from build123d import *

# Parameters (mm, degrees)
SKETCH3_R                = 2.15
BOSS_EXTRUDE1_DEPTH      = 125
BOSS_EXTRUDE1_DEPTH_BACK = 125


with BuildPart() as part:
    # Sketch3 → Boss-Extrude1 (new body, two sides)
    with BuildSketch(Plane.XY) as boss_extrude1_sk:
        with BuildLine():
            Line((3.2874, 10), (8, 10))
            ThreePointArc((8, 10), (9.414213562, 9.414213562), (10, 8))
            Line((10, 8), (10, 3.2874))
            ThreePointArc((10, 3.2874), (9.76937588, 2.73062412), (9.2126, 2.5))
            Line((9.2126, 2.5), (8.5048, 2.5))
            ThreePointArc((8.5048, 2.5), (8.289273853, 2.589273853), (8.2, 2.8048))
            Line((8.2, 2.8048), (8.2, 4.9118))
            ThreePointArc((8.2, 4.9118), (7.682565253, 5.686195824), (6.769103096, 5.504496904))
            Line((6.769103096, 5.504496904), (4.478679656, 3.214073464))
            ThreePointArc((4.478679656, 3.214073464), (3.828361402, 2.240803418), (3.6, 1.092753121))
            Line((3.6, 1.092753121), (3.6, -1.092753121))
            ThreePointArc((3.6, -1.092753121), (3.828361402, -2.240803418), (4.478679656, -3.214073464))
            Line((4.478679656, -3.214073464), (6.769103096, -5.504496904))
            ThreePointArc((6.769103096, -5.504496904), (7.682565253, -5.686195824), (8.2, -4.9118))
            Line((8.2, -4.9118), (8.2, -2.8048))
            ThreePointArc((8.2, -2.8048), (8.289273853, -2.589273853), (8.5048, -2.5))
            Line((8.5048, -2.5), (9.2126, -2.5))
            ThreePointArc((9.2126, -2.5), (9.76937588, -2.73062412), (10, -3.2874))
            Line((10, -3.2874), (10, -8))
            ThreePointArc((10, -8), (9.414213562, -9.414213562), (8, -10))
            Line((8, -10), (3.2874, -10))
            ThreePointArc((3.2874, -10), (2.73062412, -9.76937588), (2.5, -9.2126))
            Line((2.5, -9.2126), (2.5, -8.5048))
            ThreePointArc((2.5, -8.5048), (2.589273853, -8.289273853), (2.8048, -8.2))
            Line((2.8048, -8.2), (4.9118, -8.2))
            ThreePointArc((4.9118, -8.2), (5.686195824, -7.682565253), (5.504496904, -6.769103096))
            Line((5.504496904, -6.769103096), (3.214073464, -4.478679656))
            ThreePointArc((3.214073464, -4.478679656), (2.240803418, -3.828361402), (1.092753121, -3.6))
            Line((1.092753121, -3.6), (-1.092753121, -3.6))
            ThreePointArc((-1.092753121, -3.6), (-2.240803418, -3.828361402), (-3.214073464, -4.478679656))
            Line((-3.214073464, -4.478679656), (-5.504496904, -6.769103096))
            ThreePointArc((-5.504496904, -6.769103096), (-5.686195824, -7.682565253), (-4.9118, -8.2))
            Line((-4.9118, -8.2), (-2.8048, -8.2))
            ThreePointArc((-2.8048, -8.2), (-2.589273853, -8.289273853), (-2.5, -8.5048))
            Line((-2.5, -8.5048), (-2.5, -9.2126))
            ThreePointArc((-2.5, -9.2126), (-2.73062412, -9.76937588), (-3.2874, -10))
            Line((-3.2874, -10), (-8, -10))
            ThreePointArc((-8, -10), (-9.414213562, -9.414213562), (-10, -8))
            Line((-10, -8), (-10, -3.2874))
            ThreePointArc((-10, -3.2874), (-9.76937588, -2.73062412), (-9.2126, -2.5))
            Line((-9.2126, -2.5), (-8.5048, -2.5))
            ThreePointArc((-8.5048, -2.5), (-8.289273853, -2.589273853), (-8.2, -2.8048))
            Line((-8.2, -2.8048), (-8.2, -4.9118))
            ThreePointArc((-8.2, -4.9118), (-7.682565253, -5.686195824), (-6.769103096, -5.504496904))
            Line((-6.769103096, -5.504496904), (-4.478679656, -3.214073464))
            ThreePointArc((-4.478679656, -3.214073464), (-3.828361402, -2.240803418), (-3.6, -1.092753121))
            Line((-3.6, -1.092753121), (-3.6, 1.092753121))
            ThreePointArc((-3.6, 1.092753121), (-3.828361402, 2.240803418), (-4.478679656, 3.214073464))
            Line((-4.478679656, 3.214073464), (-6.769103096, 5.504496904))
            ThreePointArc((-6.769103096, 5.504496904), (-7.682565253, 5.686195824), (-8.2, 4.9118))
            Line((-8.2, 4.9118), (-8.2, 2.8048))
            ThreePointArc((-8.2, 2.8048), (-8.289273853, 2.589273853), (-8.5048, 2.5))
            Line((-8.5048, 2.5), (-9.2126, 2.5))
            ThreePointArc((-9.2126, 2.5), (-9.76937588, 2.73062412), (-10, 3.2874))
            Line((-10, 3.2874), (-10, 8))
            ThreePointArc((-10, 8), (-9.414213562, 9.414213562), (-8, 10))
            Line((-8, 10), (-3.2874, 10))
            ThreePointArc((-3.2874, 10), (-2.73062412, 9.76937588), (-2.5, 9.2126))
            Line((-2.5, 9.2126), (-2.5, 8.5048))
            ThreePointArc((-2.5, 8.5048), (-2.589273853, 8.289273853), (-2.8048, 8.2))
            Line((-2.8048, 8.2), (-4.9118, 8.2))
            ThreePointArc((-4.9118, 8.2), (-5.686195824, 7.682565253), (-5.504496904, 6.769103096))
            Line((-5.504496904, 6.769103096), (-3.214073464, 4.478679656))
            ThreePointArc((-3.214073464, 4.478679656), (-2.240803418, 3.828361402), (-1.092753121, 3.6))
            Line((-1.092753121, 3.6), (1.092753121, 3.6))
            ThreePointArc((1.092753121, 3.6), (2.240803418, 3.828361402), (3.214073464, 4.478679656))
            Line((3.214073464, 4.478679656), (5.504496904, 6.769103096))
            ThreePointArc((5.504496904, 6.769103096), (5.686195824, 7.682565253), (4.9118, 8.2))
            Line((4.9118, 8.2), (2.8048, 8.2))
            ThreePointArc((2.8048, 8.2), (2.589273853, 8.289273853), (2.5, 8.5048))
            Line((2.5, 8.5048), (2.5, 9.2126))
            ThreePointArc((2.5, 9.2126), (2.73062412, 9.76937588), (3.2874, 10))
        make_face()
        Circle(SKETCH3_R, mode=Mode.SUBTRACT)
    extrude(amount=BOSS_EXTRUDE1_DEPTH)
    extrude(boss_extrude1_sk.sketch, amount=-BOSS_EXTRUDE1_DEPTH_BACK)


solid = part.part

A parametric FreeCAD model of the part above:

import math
import FreeCAD as App
import Part
import Sketcher
from FreeCAD import Vector

doc = App.newDocument("Part")
body = doc.addObject("PartDesign::Body", "Body")

# Sketch on XY plane
sketch1 = body.newObject("Sketcher::SketchObject", "Sketch")
sketch1.AttachmentSupport = (doc.getObject("XY_Plane"), [""])
sketch1.MapMode = "FlatFace"
sketch1.addGeometry([
    Part.LineSegment(Vector(8, 10, 0), Vector(3.29, 10, 0)),  # 0
    Part.ArcOfCircle(Part.Circle(Vector(3.29, 9.21, 0), Vector(0, 0, 1), 0.79), math.radians(90), math.radians(180)),  # 1
    Part.LineSegment(Vector(2.5, 9.21, 0), Vector(2.5, 8.5, 0)),  # 2
    Part.ArcOfCircle(Part.Circle(Vector(2.8, 8.5, 0), Vector(0, 0, 1), 0.3), math.radians(180), math.radians(270)),  # 3
    Part.LineSegment(Vector(2.8, 8.2, 0), Vector(4.91, 8.2, 0)),  # 4
    Part.ArcOfCircle(Part.Circle(Vector(4.91, 7.36, 0), Vector(0, 0, 1), 0.84), math.radians(-45), math.radians(90)),  # 5
    Part.LineSegment(Vector(5.5, 6.77, 0), Vector(3.21, 4.48, 0)),  # 6
    Part.ArcOfCircle(Part.Circle(Vector(1.09, 6.6, 0), Vector(0, 0, 1), 3), math.radians(-90), math.radians(-45)),  # 7
    Part.LineSegment(Vector(1.09, 3.6, 0), Vector(-1.09, 3.6, 0)),  # 8
    Part.ArcOfCircle(Part.Circle(Vector(-1.09, 6.6, 0), Vector(0, 0, 1), 3), math.radians(-135), math.radians(-90)),  # 9
    Part.LineSegment(Vector(-3.21, 4.48, 0), Vector(-5.5, 6.77, 0)),  # 10
    Part.ArcOfCircle(Part.Circle(Vector(-4.91, 7.36, 0), Vector(0, 0, 1), 0.84), math.radians(90), math.radians(225)),  # 11
    Part.LineSegment(Vector(-4.91, 8.2, 0), Vector(-2.8, 8.2, 0)),  # 12
    Part.ArcOfCircle(Part.Circle(Vector(-2.8, 8.5, 0), Vector(0, 0, 1), 0.3), math.radians(-90), math.radians(0)),  # 13
    Part.LineSegment(Vector(-2.5, 8.5, 0), Vector(-2.5, 9.21, 0)),  # 14
    Part.ArcOfCircle(Part.Circle(Vector(-3.29, 9.21, 0), Vector(0, 0, 1), 0.79), math.radians(0), math.radians(90)),  # 15
    Part.LineSegment(Vector(-3.29, 10, 0), Vector(-8, 10, 0)),  # 16
    Part.ArcOfCircle(Part.Circle(Vector(-8, 8, 0), Vector(0, 0, 1), 2), math.radians(90), math.radians(180)),  # 17
    Part.LineSegment(Vector(-10, 8, 0), Vector(-10, 3.29, 0)),  # 18
    Part.ArcOfCircle(Part.Circle(Vector(-9.21, 3.29, 0), Vector(0, 0, 1), 0.79), math.radians(180), math.radians(270)),  # 19
    Part.LineSegment(Vector(-9.21, 2.5, 0), Vector(-8.5, 2.5, 0)),  # 20
    Part.ArcOfCircle(Part.Circle(Vector(-8.5, 2.8, 0), Vector(0, 0, 1), 0.3), math.radians(-90), math.radians(0)),  # 21
    Part.LineSegment(Vector(-8.2, 2.8, 0), Vector(-8.2, 4.91, 0)),  # 22
    Part.ArcOfCircle(Part.Circle(Vector(-7.36, 4.91, 0), Vector(0, 0, 1), 0.84), math.radians(45), math.radians(180)),  # 23
    Part.LineSegment(Vector(-6.77, 5.5, 0), Vector(-4.48, 3.21, 0)),  # 24
    Part.ArcOfCircle(Part.Circle(Vector(-6.6, 1.09, 0), Vector(0, 0, 1), 3), math.radians(0), math.radians(45)),  # 25
    Part.LineSegment(Vector(-3.6, 1.09, 0), Vector(-3.6, -1.09, 0)),  # 26
    Part.ArcOfCircle(Part.Circle(Vector(-6.6, -1.09, 0), Vector(0, 0, 1), 3), math.radians(-45), math.radians(0)),  # 27
    Part.LineSegment(Vector(-4.48, -3.21, 0), Vector(-6.77, -5.5, 0)),  # 28
    Part.ArcOfCircle(Part.Circle(Vector(-7.36, -4.91, 0), Vector(0, 0, 1), 0.84), math.radians(180), math.radians(315)),  # 29
    Part.LineSegment(Vector(-8.2, -4.91, 0), Vector(-8.2, -2.8, 0)),  # 30
    Part.ArcOfCircle(Part.Circle(Vector(-8.5, -2.8, 0), Vector(0, 0, 1), 0.3), math.radians(0), math.radians(90)),  # 31
    Part.LineSegment(Vector(-8.5, -2.5, 0), Vector(-9.21, -2.5, 0)),  # 32
    Part.ArcOfCircle(Part.Circle(Vector(-9.21, -3.29, 0), Vector(0, 0, 1), 0.79), math.radians(90), math.radians(180)),  # 33
    Part.LineSegment(Vector(-10, -3.29, 0), Vector(-10, -8, 0)),  # 34
    Part.ArcOfCircle(Part.Circle(Vector(-8, -8, 0), Vector(0, 0, 1), 2), math.radians(-180), math.radians(-90)),  # 35
    Part.LineSegment(Vector(-8, -10, 0), Vector(-3.29, -10, 0)),  # 36
    Part.ArcOfCircle(Part.Circle(Vector(-3.29, -9.21, 0), Vector(0, 0, 1), 0.79), math.radians(-90), math.radians(0)),  # 37
    Part.LineSegment(Vector(-2.5, -9.21, 0), Vector(-2.5, -8.5, 0)),  # 38
    Part.ArcOfCircle(Part.Circle(Vector(-2.8, -8.5, 0), Vector(0, 0, 1), 0.3), math.radians(0), math.radians(90)),  # 39
    Part.LineSegment(Vector(-2.8, -8.2, 0), Vector(-4.91, -8.2, 0)),  # 40
    Part.ArcOfCircle(Part.Circle(Vector(-4.91, -7.36, 0), Vector(0, 0, 1), 0.84), math.radians(135), math.radians(270)),  # 41
    Part.LineSegment(Vector(-5.5, -6.77, 0), Vector(-3.21, -4.48, 0)),  # 42
    Part.ArcOfCircle(Part.Circle(Vector(-1.09, -6.6, 0), Vector(0, 0, 1), 3), math.radians(90), math.radians(135)),  # 43
    Part.LineSegment(Vector(-1.09, -3.6, 0), Vector(1.09, -3.6, 0)),  # 44
    Part.ArcOfCircle(Part.Circle(Vector(1.09, -6.6, 0), Vector(0, 0, 1), 3), math.radians(45), math.radians(90)),  # 45
    Part.LineSegment(Vector(3.21, -4.48, 0), Vector(5.5, -6.77, 0)),  # 46
    Part.ArcOfCircle(Part.Circle(Vector(4.91, -7.36, 0), Vector(0, 0, 1), 0.84), math.radians(-90), math.radians(45)),  # 47
    Part.LineSegment(Vector(4.91, -8.2, 0), Vector(2.8, -8.2, 0)),  # 48
    Part.ArcOfCircle(Part.Circle(Vector(2.8, -8.5, 0), Vector(0, 0, 1), 0.3), math.radians(90), math.radians(180)),  # 49
    Part.LineSegment(Vector(2.5, -8.5, 0), Vector(2.5, -9.21, 0)),  # 50
    Part.ArcOfCircle(Part.Circle(Vector(3.29, -9.21, 0), Vector(0, 0, 1), 0.79), math.radians(180), math.radians(270)),  # 51
    Part.LineSegment(Vector(3.29, -10, 0), Vector(8, -10, 0)),  # 52
    Part.ArcOfCircle(Part.Circle(Vector(8, -8, 0), Vector(0, 0, 1), 2), math.radians(-90), math.radians(0)),  # 53
    Part.LineSegment(Vector(10, -8, 0), Vector(10, -3.29, 0)),  # 54
    Part.ArcOfCircle(Part.Circle(Vector(9.21, -3.29, 0), Vector(0, 0, 1), 0.79), math.radians(0), math.radians(90)),  # 55
    Part.LineSegment(Vector(9.21, -2.5, 0), Vector(8.5, -2.5, 0)),  # 56
    Part.ArcOfCircle(Part.Circle(Vector(8.5, -2.8, 0), Vector(0, 0, 1), 0.3), math.radians(90), math.radians(180)),  # 57
    Part.LineSegment(Vector(8.2, -2.8, 0), Vector(8.2, -4.91, 0)),  # 58
    Part.ArcOfCircle(Part.Circle(Vector(7.36, -4.91, 0), Vector(0, 0, 1), 0.84), math.radians(-135), math.radians(0)),  # 59
    Part.LineSegment(Vector(6.77, -5.5, 0), Vector(4.48, -3.21, 0)),  # 60
    Part.ArcOfCircle(Part.Circle(Vector(6.6, -1.09, 0), Vector(0, 0, 1), 3), math.radians(180), math.radians(225)),  # 61
    Part.LineSegment(Vector(3.6, -1.09, 0), Vector(3.6, 1.09, 0)),  # 62
    Part.ArcOfCircle(Part.Circle(Vector(6.6, 1.09, 0), Vector(0, 0, 1), 3), math.radians(135), math.radians(180)),  # 63
    Part.LineSegment(Vector(4.48, 3.21, 0), Vector(6.77, 5.5, 0)),  # 64
    Part.ArcOfCircle(Part.Circle(Vector(7.36, 4.91, 0), Vector(0, 0, 1), 0.84), math.radians(0), math.radians(135)),  # 65
    Part.LineSegment(Vector(8.2, 4.91, 0), Vector(8.2, 2.8, 0)),  # 66
    Part.ArcOfCircle(Part.Circle(Vector(8.5, 2.8, 0), Vector(0, 0, 1), 0.3), math.radians(180), math.radians(270)),  # 67
    Part.LineSegment(Vector(8.5, 2.5, 0), Vector(9.21, 2.5, 0)),  # 68
    Part.ArcOfCircle(Part.Circle(Vector(9.21, 3.29, 0), Vector(0, 0, 1), 0.79), math.radians(-90), math.radians(0)),  # 69
    Part.LineSegment(Vector(10, 3.29, 0), Vector(10, 8, 0)),  # 70
    Part.ArcOfCircle(Part.Circle(Vector(8, 8, 0), Vector(0, 0, 1), 2), math.radians(0), math.radians(90)),  # 71
    Part.Circle(Vector(0, 0, 0), Vector(0, 0, 1), 2.15),  # 72
], False)
sketch1.addConstraint([
    Sketcher.Constraint("Tangent", 0, 2, 1, 1),
    Sketcher.Constraint("Tangent", 1, 2, 2, 1),
    Sketcher.Constraint("Tangent", 2, 2, 3, 1),
    Sketcher.Constraint("Tangent", 3, 2, 4, 1),
    Sketcher.Constraint("Tangent", 4, 2, 5, 2),
    Sketcher.Constraint("Tangent", 5, 1, 6, 1),
    Sketcher.Constraint("Tangent", 6, 2, 7, 2),
    Sketcher.Constraint("Tangent", 7, 1, 8, 1),
    Sketcher.Constraint("Tangent", 8, 2, 9, 2),
    Sketcher.Constraint("Tangent", 9, 1, 10, 1),
    Sketcher.Constraint("Tangent", 10, 2, 11, 2),
    Sketcher.Constraint("Tangent", 11, 1, 12, 1),
    Sketcher.Constraint("Tangent", 12, 2, 13, 1),
    Sketcher.Constraint("Tangent", 13, 2, 14, 1),
    Sketcher.Constraint("Tangent", 14, 2, 15, 1),
    Sketcher.Constraint("Tangent", 15, 2, 16, 1),
    Sketcher.Constraint("Tangent", 16, 2, 17, 1),
    Sketcher.Constraint("Tangent", 17, 2, 18, 1),
    Sketcher.Constraint("Tangent", 18, 2, 19, 1),
    Sketcher.Constraint("Tangent", 19, 2, 20, 1),
    Sketcher.Constraint("Tangent", 20, 2, 21, 1),
    Sketcher.Constraint("Tangent", 21, 2, 22, 1),
    Sketcher.Constraint("Tangent", 22, 2, 23, 2),
    Sketcher.Constraint("Tangent", 23, 1, 24, 1),
    Sketcher.Constraint("Tangent", 24, 2, 25, 2),
    Sketcher.Constraint("Tangent", 25, 1, 26, 1),
    Sketcher.Constraint("Tangent", 26, 2, 27, 2),
    Sketcher.Constraint("Tangent", 27, 1, 28, 1),
    Sketcher.Constraint("Tangent", 28, 2, 29, 2),
    Sketcher.Constraint("Tangent", 29, 1, 30, 1),
    Sketcher.Constraint("Tangent", 30, 2, 31, 1),
    Sketcher.Constraint("Tangent", 31, 2, 32, 1),
    Sketcher.Constraint("Tangent", 32, 2, 33, 1),
    Sketcher.Constraint("Tangent", 33, 2, 34, 1),
    Sketcher.Constraint("Tangent", 34, 2, 35, 1),
    Sketcher.Constraint("Tangent", 35, 2, 36, 1),
    Sketcher.Constraint("Tangent", 36, 2, 37, 1),
    Sketcher.Constraint("Tangent", 37, 2, 38, 1),
    Sketcher.Constraint("Tangent", 38, 2, 39, 1),
    Sketcher.Constraint("Tangent", 39, 2, 40, 1),
    Sketcher.Constraint("Tangent", 40, 2, 41, 2),
    Sketcher.Constraint("Tangent", 41, 1, 42, 1),
    Sketcher.Constraint("Tangent", 42, 2, 43, 2),
    Sketcher.Constraint("Tangent", 43, 1, 44, 1),
    Sketcher.Constraint("Tangent", 44, 2, 45, 2),
    Sketcher.Constraint("Tangent", 45, 1, 46, 1),
    Sketcher.Constraint("Tangent", 46, 2, 47, 2),
    Sketcher.Constraint("Tangent", 47, 1, 48, 1),
    Sketcher.Constraint("Tangent", 48, 2, 49, 1),
    Sketcher.Constraint("Tangent", 49, 2, 50, 1),
    Sketcher.Constraint("Tangent", 50, 2, 51, 1),
    Sketcher.Constraint("Tangent", 51, 2, 52, 1),
    Sketcher.Constraint("Tangent", 52, 2, 53, 1),
    Sketcher.Constraint("Tangent", 53, 2, 54, 1),
    Sketcher.Constraint("Tangent", 54, 2, 55, 1),
    Sketcher.Constraint("Tangent", 55, 2, 56, 1),
    Sketcher.Constraint("Tangent", 56, 2, 57, 1),
    Sketcher.Constraint("Tangent", 57, 2, 58, 1),
    Sketcher.Constraint("Tangent", 58, 2, 59, 2),
    Sketcher.Constraint("Tangent", 59, 1, 60, 1),
    Sketcher.Constraint("Tangent", 60, 2, 61, 2),
    Sketcher.Constraint("Tangent", 61, 1, 62, 1),
    Sketcher.Constraint("Tangent", 62, 2, 63, 2),
    Sketcher.Constraint("Tangent", 63, 1, 64, 1),
    Sketcher.Constraint("Tangent", 64, 2, 65, 2),
    Sketcher.Constraint("Tangent", 65, 1, 66, 1),
    Sketcher.Constraint("Tangent", 66, 2, 67, 1),
    Sketcher.Constraint("Tangent", 67, 2, 68, 1),
    Sketcher.Constraint("Tangent", 68, 2, 69, 1),
    Sketcher.Constraint("Tangent", 69, 2, 70, 1),
    Sketcher.Constraint("Tangent", 70, 2, 71, 1),
    Sketcher.Constraint("Tangent", 71, 2, 0, 1),
    Sketcher.Constraint("Horizontal", 0),
    Sketcher.Constraint("Vertical", 2),
    Sketcher.Constraint("Horizontal", 4),
    Sketcher.Constraint("Horizontal", 8),
    Sketcher.Constraint("Horizontal", 12),
    Sketcher.Constraint("Vertical", 14),
    Sketcher.Constraint("Horizontal", 16),
    Sketcher.Constraint("Vertical", 18),
    Sketcher.Constraint("Horizontal", 20),
    Sketcher.Constraint("Vertical", 22),
    Sketcher.Constraint("Vertical", 26),
    Sketcher.Constraint("Vertical", 30),
    Sketcher.Constraint("Horizontal", 32),
    Sketcher.Constraint("Vertical", 34),
    Sketcher.Constraint("Horizontal", 36),
    Sketcher.Constraint("Vertical", 38),
    Sketcher.Constraint("Horizontal", 40),
    Sketcher.Constraint("Horizontal", 44),
    Sketcher.Constraint("Horizontal", 48),
    Sketcher.Constraint("Vertical", 50),
    Sketcher.Constraint("Horizontal", 52),
    Sketcher.Constraint("Vertical", 54),
    Sketcher.Constraint("Horizontal", 56),
    Sketcher.Constraint("Vertical", 58),
    Sketcher.Constraint("Vertical", 62),
    Sketcher.Constraint("Vertical", 66),
    Sketcher.Constraint("Horizontal", 68),
    Sketcher.Constraint("Vertical", 70),
    Sketcher.Constraint("Coincident", 72, 3, -1, 1),
    Sketcher.Constraint("Equal", 7, 9),
    Sketcher.Constraint("Equal", 5, 11),
    Sketcher.Constraint("Equal", 3, 13),
    Sketcher.Constraint("Equal", 1, 15),
    Sketcher.Constraint("Equal", 15, 19),
    Sketcher.Constraint("Equal", 13, 21),
    Sketcher.Constraint("Equal", 11, 23),
    Sketcher.Constraint("Equal", 9, 25),
    Sketcher.Constraint("Equal", 25, 27),
    Sketcher.Constraint("Equal", 23, 29),
    Sketcher.Constraint("Equal", 21, 31),
    Sketcher.Constraint("Equal", 19, 33),
    Sketcher.Constraint("Equal", 17, 35),
    Sketcher.Constraint("Equal", 33, 37),
    Sketcher.Constraint("Equal", 31, 39),
    Sketcher.Constraint("Equal", 29, 41),
    Sketcher.Constraint("Equal", 27, 43),
    Sketcher.Constraint("Equal", 43, 45),
    Sketcher.Constraint("Equal", 41, 47),
    Sketcher.Constraint("Equal", 39, 49),
    Sketcher.Constraint("Equal", 37, 51),
    Sketcher.Constraint("Equal", 35, 53),
    Sketcher.Constraint("Equal", 51, 55),
    Sketcher.Constraint("Equal", 49, 57),
    Sketcher.Constraint("Equal", 47, 59),
    Sketcher.Constraint("Equal", 45, 61),
    Sketcher.Constraint("Equal", 61, 63),
    Sketcher.Constraint("Equal", 59, 65),
    Sketcher.Constraint("Equal", 57, 67),
    Sketcher.Constraint("Equal", 55, 69),
    Sketcher.Constraint("Equal", 53, 71),
    Sketcher.Constraint("Symmetric", 1, 3, 37, 3, -1, 1),
    Sketcher.Constraint("Symmetric", 5, 3, 41, 3, -1, 1),
    Sketcher.Constraint("Symmetric", 7, 3, 43, 3, -1, 1),
    Sketcher.Constraint("Symmetric", 11, 3, 47, 3, -1, 1),
    Sketcher.Constraint("Symmetric", 15, 3, 51, 3, -1, 1),
    Sketcher.Constraint("Symmetric", 19, 3, 55, 3, -1, 1),
    Sketcher.Constraint("Symmetric", 23, 3, 59, 3, -1, 1),
    Sketcher.Constraint("Symmetric", 25, 3, 61, 3, -1, 1),
    Sketcher.Constraint("Symmetric", 29, 3, 65, 3, -1, 1),
    Sketcher.Constraint("Symmetric", 33, 3, 69, 3, -1, 1),
    Sketcher.Constraint("Symmetric", 5, 3, 11, 3, -2),
    Sketcher.Constraint("Symmetric", 1, 3, 15, 3, -2),
    Sketcher.Constraint("Symmetric", 33, 3, 55, 3, -2),
    Sketcher.Constraint("Symmetric", 29, 3, 59, 3, -2),
    Sketcher.Constraint("Perpendicular", 6, 10),
    Sketcher.Constraint("Parallel", 10, 24),
    Sketcher.Constraint("Perpendicular", 24, 28),
    Sketcher.Constraint("Perpendicular", 42, 46),
    Sketcher.Constraint("Perpendicular", 60, 64),
    Sketcher.Constraint("Horizontal", 27, 3, 61, 3),
    Sketcher.Constraint("Equal", 68, 2),
    Sketcher.Constraint("Equal", 52, 18),
    Sketcher.Constraint("Equal", 48, 22),
    Sketcher.Constraint("Equal", 44, 26),
    Sketcher.Constraint("Equal", 10, 24),
    Sketcher.Constraint("Radius", 7, 3.0),
    Sketcher.Constraint("Radius", 17, 2.0),
    Sketcher.Constraint("Diameter", 72, 4.3),
    Sketcher.Constraint("DistanceX", 17, 3, -1, 1, 8.0),
    Sketcher.Constraint("DistanceY", -1, 1, 7, 3, 6.6),
    Sketcher.Constraint("DistanceX", -1, 1, 1, 2, 2.5),
    Sketcher.Constraint("DistanceY", -1, 1, 3, 2, 8.2),
    Sketcher.Constraint("Radius", 1, 0.7874),
    Sketcher.Constraint("Radius", 3, 0.3048),
    Sketcher.Constraint("Radius", 5, 0.8382),
    Sketcher.Constraint("DistanceX", 4, 1, 4, 2, 2.107),
])
pad1 = body.newObject("PartDesign::Pad", "Pad")
pad1.Profile = sketch1
pad1.Type = "TwoLengths"
pad1.Length = 125
pad1.Length2 = 125

doc.recompute()
